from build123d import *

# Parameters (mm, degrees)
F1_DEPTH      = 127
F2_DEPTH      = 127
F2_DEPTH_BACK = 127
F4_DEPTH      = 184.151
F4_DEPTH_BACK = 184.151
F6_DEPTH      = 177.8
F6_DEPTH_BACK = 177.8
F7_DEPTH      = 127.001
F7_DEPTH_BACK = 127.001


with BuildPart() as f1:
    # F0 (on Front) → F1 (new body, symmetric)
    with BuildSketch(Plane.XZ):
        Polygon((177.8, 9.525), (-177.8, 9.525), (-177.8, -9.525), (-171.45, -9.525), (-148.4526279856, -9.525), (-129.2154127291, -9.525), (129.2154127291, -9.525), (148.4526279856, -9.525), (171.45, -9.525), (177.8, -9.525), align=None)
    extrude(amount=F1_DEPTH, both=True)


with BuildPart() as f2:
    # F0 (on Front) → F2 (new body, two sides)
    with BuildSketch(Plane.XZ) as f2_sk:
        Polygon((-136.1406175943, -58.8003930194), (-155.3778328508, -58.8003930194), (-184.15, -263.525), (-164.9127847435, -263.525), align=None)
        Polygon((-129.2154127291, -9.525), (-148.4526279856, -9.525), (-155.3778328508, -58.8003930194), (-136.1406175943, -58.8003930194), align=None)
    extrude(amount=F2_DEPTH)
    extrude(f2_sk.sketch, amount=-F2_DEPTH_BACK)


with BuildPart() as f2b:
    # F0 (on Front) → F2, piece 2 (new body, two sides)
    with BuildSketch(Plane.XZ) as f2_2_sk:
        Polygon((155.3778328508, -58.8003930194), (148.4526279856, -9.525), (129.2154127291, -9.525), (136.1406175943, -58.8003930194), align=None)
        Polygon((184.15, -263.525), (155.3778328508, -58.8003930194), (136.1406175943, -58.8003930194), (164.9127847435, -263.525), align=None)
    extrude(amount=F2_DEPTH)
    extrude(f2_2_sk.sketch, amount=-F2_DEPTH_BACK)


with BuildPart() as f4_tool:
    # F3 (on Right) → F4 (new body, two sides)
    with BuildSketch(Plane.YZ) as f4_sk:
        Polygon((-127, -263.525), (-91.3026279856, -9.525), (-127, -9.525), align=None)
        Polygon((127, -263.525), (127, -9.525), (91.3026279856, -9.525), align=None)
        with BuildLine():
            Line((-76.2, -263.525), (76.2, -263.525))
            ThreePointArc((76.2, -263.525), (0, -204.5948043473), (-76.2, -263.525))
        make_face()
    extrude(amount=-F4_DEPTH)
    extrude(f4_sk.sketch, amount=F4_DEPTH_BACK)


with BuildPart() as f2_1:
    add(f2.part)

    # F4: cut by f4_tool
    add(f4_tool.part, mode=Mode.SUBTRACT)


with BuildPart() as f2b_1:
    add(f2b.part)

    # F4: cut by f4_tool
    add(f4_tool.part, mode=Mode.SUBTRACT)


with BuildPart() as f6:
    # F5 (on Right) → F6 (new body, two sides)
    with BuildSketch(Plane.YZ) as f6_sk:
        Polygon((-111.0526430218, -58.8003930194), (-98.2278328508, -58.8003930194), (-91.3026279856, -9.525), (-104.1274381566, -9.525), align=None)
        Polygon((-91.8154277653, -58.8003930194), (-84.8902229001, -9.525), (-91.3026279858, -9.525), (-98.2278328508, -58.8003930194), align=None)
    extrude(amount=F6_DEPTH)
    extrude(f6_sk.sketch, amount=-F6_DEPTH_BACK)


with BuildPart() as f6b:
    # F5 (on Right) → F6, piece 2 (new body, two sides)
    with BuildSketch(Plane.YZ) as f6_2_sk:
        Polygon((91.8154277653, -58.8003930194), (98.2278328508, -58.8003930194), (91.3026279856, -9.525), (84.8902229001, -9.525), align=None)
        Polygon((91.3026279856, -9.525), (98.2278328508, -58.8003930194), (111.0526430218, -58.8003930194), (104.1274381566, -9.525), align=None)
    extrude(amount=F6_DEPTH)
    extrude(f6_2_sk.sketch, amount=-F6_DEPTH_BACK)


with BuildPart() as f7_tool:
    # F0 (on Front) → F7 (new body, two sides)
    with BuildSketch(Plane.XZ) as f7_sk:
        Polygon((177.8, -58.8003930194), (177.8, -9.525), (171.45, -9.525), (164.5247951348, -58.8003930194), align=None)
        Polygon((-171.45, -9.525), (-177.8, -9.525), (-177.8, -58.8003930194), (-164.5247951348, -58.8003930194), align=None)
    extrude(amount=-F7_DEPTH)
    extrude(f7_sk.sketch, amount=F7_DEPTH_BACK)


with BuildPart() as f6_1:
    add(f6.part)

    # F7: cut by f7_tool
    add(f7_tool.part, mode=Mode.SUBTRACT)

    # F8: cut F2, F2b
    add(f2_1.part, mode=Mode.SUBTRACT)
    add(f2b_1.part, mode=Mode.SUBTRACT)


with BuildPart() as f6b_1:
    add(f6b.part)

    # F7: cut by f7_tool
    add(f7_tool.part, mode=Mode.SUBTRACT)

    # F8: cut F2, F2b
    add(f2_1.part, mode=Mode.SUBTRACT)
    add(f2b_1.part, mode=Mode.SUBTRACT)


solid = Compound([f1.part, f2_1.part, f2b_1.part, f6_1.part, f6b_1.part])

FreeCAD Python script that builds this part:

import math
import FreeCAD as App
import Part
import Sketcher

V = App.Vector
Q = App.Units.Quantity


def add_polygon(sketch, points):
    """Adds a closed chain of lines whose ends are joined by coincident constraints."""
    first, n = sketch.GeometryCount, len(points)
    for a, b in zip(points, points[1:] + points[:1]):
        sketch.addGeometry(Part.LineSegment(App.Vector(*a, 0), App.Vector(*b, 0)), False)
    for i in range(n):
        sketch.addConstraint(Sketcher.Constraint("Coincident", first + i, 2, first + (i + 1) % n, 1))

doc = App.newDocument("Part")
params = doc.addObject("Spreadsheet::Sheet", "Params")
for row, (alias, value) in enumerate([
    ("sketch1_width", "14 in"),
    ("sketch1_height", "0.75 in"),
    ("pad1_length", "10 in"),
    ("pad2_length", "5 in"),
    ("pad2_length2", "5 in"),
    ("pad3_length", "5 in"),
    ("pad3_length2", "5 in"),
    ("sketch4_width", "6 in"),
    ("sketch4_height", "10 in"),
    ("pad4_length", "184.151 mm"),
    ("pad4_length2", "184.151 mm"),
    ("pad5_length", "7 in"),
    ("pad5_length2", "7 in"),
    ("pad6_length", "7 in"),
    ("pad6_length2", "7 in"),
    ("sketch7_width", "0.25 in"),
    ("pad7_length", "127.001 mm"),
    ("pad7_length2", "127.001 mm"),
], start=1):
    params.set(f"A{row}", alias)
    params.set(f"B{row}", "=" + value)
    params.setAlias(f"B{row}", alias)

body = doc.addObject("PartDesign::Body", "Body")

sketch1 = doc.addObject("Sketcher::SketchObject", "Sketch")
body.addObject(sketch1)
sketch1.AttachmentSupport = (doc.XZ_Plane, [""])
sketch1.MapMode = "FlatFace"
add_polygon(sketch1, [(178, 10), (-178, 10), (-178, -10), (178, -10)])
sketch1.addConstraint([
    Sketcher.Constraint("Horizontal", 0),
    Sketcher.Constraint("Vertical", 1),
    Sketcher.Constraint("Horizontal", 2),
    Sketcher.Constraint("Vertical", 3),
    Sketcher.Constraint("Symmetric", 0, 2, 2, 2, -1, 1),
    Sketcher.Constraint("DistanceX", 0, 2, 0, 1, Q("14 in")),
    Sketcher.Constraint("DistanceY", 1, 2, 1, 1, Q("0.75 in")),
])
sketch1.setExpression("Constraints[9]", "Params.sketch1_width")
sketch1.setExpression("Constraints[10]", "Params.sketch1_height")
pad1 = doc.addObject("PartDesign::Pad", "Pad")
body.addObject(pad1)
pad1.Profile = sketch1
pad1.setExpression("Length", "Params.pad1_length")
pad1.Midplane = True
body2 = doc.addObject("PartDesign::Body", "Body001")

sketch2 = doc.addObject("Sketcher::SketchObject", "Sketch001")
body2.addObject(sketch2)
sketch2.AttachmentSupport = (doc.getObject("XZ_Plane001"), [""])
sketch2.MapMode = "FlatFace"
add_polygon(sketch2, [(-184, -264), (-165, -264), (-129, -10), (-148, -10)])
sketch2.addConstraint([
    Sketcher.Constraint("Horizontal", 0),
    Sketcher.Constraint("Horizontal", 2),
    Sketcher.Constraint("Parallel", 1, 3),
    Sketcher.Constraint("Angle", 1, Q("82 deg")),
    Sketcher.Constraint("DistanceY", 0, 2, 1, 2, Q("10 in")),
    Sketcher.Constraint("DistanceX", 3, 2, -1, 1, Q("7.25 in")),
    Sketcher.Constraint("DistanceY", 0, 2, -1, 1, Q("10.375 in")),
    Sketcher.Constraint("DistanceX", 0, 1, 0, 2, 19.237215),
])
pad2 = doc.addObject("PartDesign::Pad", "Pad001")
body2.addObject(pad2)
pad2.Profile = sketch2
pad2.Type = "TwoLengths"
pad2.setExpression("Length", "Params.pad2_length")
pad2.setExpression("Length2", "Params.pad2_length2")
body3 = doc.addObject("PartDesign::Body", "Body002")

sketch3 = doc.addObject("Sketcher::SketchObject", "Sketch002")
body3.addObject(sketch3)
sketch3.AttachmentSupport = (doc.getObject("XZ_Plane002"), [""])
sketch3.MapMode = "FlatFace"
add_polygon(sketch3, [(148, -10), (129, -10), (165, -264), (184, -264)])
sketch3.addConstraint([
    Sketcher.Constraint("Horizontal", 0),
    Sketcher.Constraint("Horizontal", 2),
    Sketcher.Constraint("Parallel", 1, 3),
    Sketcher.Constraint("Angle", 1, Q("-82 deg")),
    Sketcher.Constraint("DistanceY", 1, 2, 0, 2, Q("10 in")),
    Sketcher.Constraint("DistanceX", -1, 1, 2, 2, Q("7.25 in")),
    Sketcher.Constraint("DistanceY", 0, 2, -1, 1, Q("0.375 in")),
    Sketcher.Constraint("DistanceX", 0, 2, 0, 1, 19.237215),
])
pad3 = doc.addObject("PartDesign::Pad", "Pad002")
body3.addObject(pad3)
pad3.Profile = sketch3
pad3.Type = "TwoLengths"
pad3.setExpression("Length", "Params.pad3_length")
pad3.setExpression("Length2", "Params.pad3_length2")
body4 = doc.addObject("PartDesign::Body", "Body003")
body4.AllowCompound = True

sketch4 = doc.addObject("Sketcher::SketchObject", "Sketch003")
body4.addObject(sketch4)
sketch4.AttachmentSupport = (doc.getObject("YZ_Plane003"), [""])
sketch4.MapMode = "FlatFace"
add_polygon(sketch4, [(-127, -264), (-91, -10), (-127, -10)])
add_polygon(sketch4, [(127, -264), (127, -10), (91, -10)])
sketch4.addGeometry(Part.LineSegment(V(-76, -264, 0), V(76, -264, 0)), False)
sketch4.addGeometry(Part.ArcOfCircle(Part.Circle(V(0, -283, 0), V(0, 0, 1), 79), math.radians(15), math.radians(165)), False)
sketch4.addConstraint([
    Sketcher.Constraint("Coincident", 6, 1, 7, 2),
    Sketcher.Constraint("Coincident", 7, 1, 6, 2),
    Sketcher.Constraint("Horizontal", 1),
    Sketcher.Constraint("Vertical", 2),
    Sketcher.Constraint("Vertical", 3),
    Sketcher.Constraint("Horizontal", 4),
    Sketcher.Constraint("Horizontal", 6),
    Sketcher.Constraint("Symmetric", 1, 2, 3, 2, -2),
    Sketcher.Constraint("PointOnObject", 7, 3, -2),
    Sketcher.Constraint("Horizontal", 2, 2, 5, 2),
    Sketcher.Constraint("Horizontal", 5, 2, 6, 1),
    Sketcher.Constraint("Equal", 1, 4),
    Sketcher.Constraint("DistanceX", 6, 1, 6, 2, Q("6 in")),
    Sketcher.Constraint("DistanceY", 2, 2, 2, 1, Q("10 in")),
    Sketcher.Constraint("DistanceX", 1, 2, -1, 1, Q("5 in")),
    Sketcher.Constraint("Angle", 0, Q("82 deg")),
    Sketcher.Constraint("DistanceY", 0, 2, -1, 1, Q("0.375 in")),
    Sketcher.Constraint("Radius", 7, 78.730504),
])
sketch4.setExpression("Constraints[18]", "Params.sketch4_width")
sketch4.setExpression("Constraints[19]", "Params.sketch4_height")
pad4 = doc.addObject("PartDesign::Pad", "Pad003")
body4.addObject(pad4)
pad4.Profile = sketch4
pad4.Type = "TwoLengths"
pad4.setExpression("Length", "Params.pad4_length")
pad4.setExpression("Length2", "Params.pad4_length2")
pad4.Reversed = True
doc.recompute()

body5 = doc.addObject("PartDesign::Body", "Body004")
body5.BaseFeature = body4
boolean = doc.addObject("PartDesign::Boolean", "Boolean")
body2.addObject(boolean)
boolean.Type = "Cut"
boolean.addObjects([body5])
doc.recompute()

boolean2 = doc.addObject("PartDesign::Boolean", "Boolean001")
body3.addObject(boolean2)
boolean2.Type = "Cut"
boolean2.addObjects([body4])
body6 = doc.addObject("PartDesign::Body", "Body005")

sketch5 = doc.addObject("Sketcher::SketchObject", "Sketch004")
body6.addObject(sketch5)
sketch5.AttachmentSupport = (doc.getObject("YZ_Plane005"), [""])
sketch5.MapMode = "FlatFace"
add_polygon(sketch5, [(-111, -59), (-92, -59), (-85, -10), (-104, -10)])
sketch5.addConstraint([
    Sketcher.Constraint("Horizontal", 0),
    Sketcher.Constraint("Horizontal", 2),
    Sketcher.Constraint("Parallel", 1, 3),
    Sketcher.Constraint("Angle", 1, Q("82 deg")),
    Sketcher.Constraint("DistanceY", 1, 2, -1, 1, Q("0.375 in")),
    Sketcher.Constraint("Distance", 1, 49.759651),
    Sketcher.Constraint("DistanceX", 0, 1, 0, 2, 19.237215),
    Sketcher.Constraint("DistanceX", 2, 2, -1, 1, 104.127438),
])
pad5 = doc.addObject("PartDesign::Pad", "Pad004")
body6.addObject(pad5)
pad5.Profile = sketch5
pad5.Type = "TwoLengths"
pad5.setExpression("Length", "Params.pad5_length")
pad5.setExpression("Length2", "Params.pad5_length2")
body7 = doc.addObject("PartDesign::Body", "Body006")

sketch6 = doc.addObject("Sketcher::SketchObject", "Sketch005")
body7.addObject(sketch6)
sketch6.AttachmentSupport = (doc.getObject("YZ_Plane006"), [""])
sketch6.MapMode = "FlatFace"
add_polygon(sketch6, [(92, -59), (111, -59), (104, -10), (85, -10)])
sketch6.addConstraint([
    Sketcher.Constraint("Horizontal", 0),
    Sketcher.Constraint("Horizontal", 2),
    Sketcher.Constraint("Parallel", 1, 3),
    Sketcher.Constraint("Angle", 1, Q("98 deg")),
    Sketcher.Constraint("DistanceY", 1, 2, -1, 1, Q("0.375 in")),
    Sketcher.Constraint("Distance", 1, 49.759651),
    Sketcher.Constraint("DistanceX", 0, 1, 0, 2, 19.237215),
    Sketcher.Constraint("DistanceX", -1, 1, 1, 2, 104.127438),
])
pad6 = doc.addObject("PartDesign::Pad", "Pad005")
body7.addObject(pad6)
pad6.Profile = sketch6
pad6.Type = "TwoLengths"
pad6.setExpression("Length", "Params.pad6_length")
pad6.setExpression("Length2", "Params.pad6_length2")
body8 = doc.addObject("PartDesign::Body", "Body007")
body8.AllowCompound = True

sketch7 = doc.addObject("Sketcher::SketchObject", "Sketch006")
body8.addObject(sketch7)
sketch7.AttachmentSupport = (doc.getObject("XZ_Plane007"), [""])
sketch7.MapMode = "FlatFace"
add_polygon(sketch7, [(178, -59), (178, -10), (171, -10), (165, -59)])
add_polygon(sketch7, [(-171, -10), (-178, -10), (-178, -59), (-165, -59)])
sketch7.addConstraint([
    Sketcher.Constraint("Vertical", 0),
    Sketcher.Constraint("Horizontal", 1),
    Sketcher.Constraint("Horizontal", 3),
    Sketcher.Constraint("Horizontal", 4),
    Sketcher.Constraint("Vertical", 5),
    Sketcher.Constraint("Horizontal", 6),
    Sketcher.Constraint("Symmetric", 0, 2, 4, 2, -2),
    Sketcher.Constraint("Symmetric", 2, 2, 6, 2, -2),
    Sketcher.Constraint("Equal", 1, 4),
    Sketcher.Constraint("DistanceX", -1, 1, 0, 2, Q("7 in")),
    Sketcher.Constraint("Angle", 2, Q("-98 deg")),
    Sketcher.Constraint("DistanceX", 1, 2, 1, 1, Q("0.25 in")),
    Sketcher.Constraint("DistanceY", 0, 2, -1, 1, Q("0.375 in")),
    Sketcher.Constraint("Distance", 2, 49.759651),
])
sketch7.setExpression("Constraints[19]", "Params.sketch7_width")
pad7 = doc.addObject("PartDesign::Pad", "Pad006")
body8.addObject(pad7)
pad7.Profile = sketch7
pad7.Type = "TwoLengths"
pad7.setExpression("Length", "Params.pad7_length")
pad7.setExpression("Length2", "Params.pad7_length2")
pad7.Reversed = True
doc.recompute()

body9 = doc.addObject("PartDesign::Body", "Body008")
body9.BaseFeature = body8
boolean3 = doc.addObject("PartDesign::Boolean", "Boolean002")
body6.addObject(boolean3)
boolean3.Type = "Cut"
boolean3.addObjects([body9])
doc.recompute()

body10 = doc.addObject("PartDesign::Body", "Body009")
body10.BaseFeature = body2
boolean4 = doc.addObject("PartDesign::Boolean", "Boolean003")
body6.addObject(boolean4)
boolean4.Type = "Cut"
boolean4.addObjects([body10])
doc.recompute()

body11 = doc.addObject("PartDesign::Body", "Body010")
body11.BaseFeature = body3
boolean5 = doc.addObject("PartDesign::Boolean", "Boolean004")
body6.addObject(boolean5)
boolean5.Type = "Cut"
boolean5.addObjects([body11])
doc.recompute()

boolean6 = doc.addObject("PartDesign::Boolean", "Boolean005")
body7.addObject(boolean6)
boolean6.Type = "Cut"
boolean6.addObjects([body8])
doc.recompute()

body12 = doc.addObject("PartDesign::Body", "Body011")
body12.BaseFeature = body2
boolean7 = doc.addObject("PartDesign::Boolean", "Boolean006")
body7.addObject(boolean7)
boolean7.Type = "Cut"
boolean7.addObjects([body12])
doc.recompute()

body13 = doc.addObject("PartDesign::Body", "Body012")
body13.BaseFeature = body3
boolean8 = doc.addObject("PartDesign::Boolean", "Boolean007")
body7.addObject(boolean8)
boolean8.Type = "Cut"
boolean8.addObjects([body13])
doc.recompute()

doc.recompute()
